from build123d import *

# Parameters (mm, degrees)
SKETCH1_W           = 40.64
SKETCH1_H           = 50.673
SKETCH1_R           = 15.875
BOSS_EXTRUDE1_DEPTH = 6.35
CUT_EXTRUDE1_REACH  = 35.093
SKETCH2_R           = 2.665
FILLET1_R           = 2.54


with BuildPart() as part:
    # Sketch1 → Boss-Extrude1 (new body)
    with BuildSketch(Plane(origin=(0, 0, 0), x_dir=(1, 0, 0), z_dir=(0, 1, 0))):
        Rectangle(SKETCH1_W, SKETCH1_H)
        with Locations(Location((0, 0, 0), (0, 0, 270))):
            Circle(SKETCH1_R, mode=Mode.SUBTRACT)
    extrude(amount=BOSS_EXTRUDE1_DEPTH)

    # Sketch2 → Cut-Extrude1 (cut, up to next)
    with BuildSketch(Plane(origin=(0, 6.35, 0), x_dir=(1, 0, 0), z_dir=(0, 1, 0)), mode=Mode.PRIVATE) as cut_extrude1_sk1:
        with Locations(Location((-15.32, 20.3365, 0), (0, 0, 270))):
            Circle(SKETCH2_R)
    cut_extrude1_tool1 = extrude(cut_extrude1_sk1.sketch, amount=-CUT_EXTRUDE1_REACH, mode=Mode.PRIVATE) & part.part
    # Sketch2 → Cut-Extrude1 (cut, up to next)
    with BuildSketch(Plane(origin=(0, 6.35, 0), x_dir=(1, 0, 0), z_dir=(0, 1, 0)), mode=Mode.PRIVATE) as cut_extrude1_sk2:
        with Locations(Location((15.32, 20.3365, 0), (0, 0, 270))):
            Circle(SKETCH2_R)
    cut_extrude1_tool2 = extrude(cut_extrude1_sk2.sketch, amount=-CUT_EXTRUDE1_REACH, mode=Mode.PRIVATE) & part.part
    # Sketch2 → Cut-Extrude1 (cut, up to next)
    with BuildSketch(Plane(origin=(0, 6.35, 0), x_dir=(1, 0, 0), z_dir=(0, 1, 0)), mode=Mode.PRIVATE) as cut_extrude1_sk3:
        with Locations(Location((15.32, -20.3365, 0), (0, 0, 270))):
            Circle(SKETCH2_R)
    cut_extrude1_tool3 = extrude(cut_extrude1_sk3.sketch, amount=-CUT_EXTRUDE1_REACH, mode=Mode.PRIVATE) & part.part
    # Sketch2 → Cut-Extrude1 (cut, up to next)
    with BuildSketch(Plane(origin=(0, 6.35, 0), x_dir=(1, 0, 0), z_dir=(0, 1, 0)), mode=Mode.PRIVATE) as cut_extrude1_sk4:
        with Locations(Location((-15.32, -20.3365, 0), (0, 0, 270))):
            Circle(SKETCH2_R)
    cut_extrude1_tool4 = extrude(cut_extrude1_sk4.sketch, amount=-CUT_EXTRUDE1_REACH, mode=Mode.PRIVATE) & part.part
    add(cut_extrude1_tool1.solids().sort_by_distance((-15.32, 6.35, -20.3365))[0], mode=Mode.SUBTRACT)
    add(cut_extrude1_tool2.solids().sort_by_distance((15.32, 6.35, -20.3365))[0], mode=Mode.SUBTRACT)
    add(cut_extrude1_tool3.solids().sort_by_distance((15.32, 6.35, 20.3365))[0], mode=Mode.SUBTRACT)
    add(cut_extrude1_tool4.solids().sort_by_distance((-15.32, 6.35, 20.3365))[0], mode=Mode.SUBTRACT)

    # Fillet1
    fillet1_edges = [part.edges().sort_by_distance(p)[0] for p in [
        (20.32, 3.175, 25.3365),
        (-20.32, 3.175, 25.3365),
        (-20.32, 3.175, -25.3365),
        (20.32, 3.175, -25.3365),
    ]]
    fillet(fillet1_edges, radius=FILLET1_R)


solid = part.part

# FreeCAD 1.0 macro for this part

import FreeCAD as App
import Part
import Sketcher
from FreeCAD import Vector
Q = App.Units.Quantity


def edges_at(feature, points):
    """Names of the edges that pass closest to the given points."""
    edges = feature.Shape.Edges
    near = lambda p: min(range(len(edges)), key=lambda i: edges[i].distToShape(Part.Vertex(*p))[0])
    return sorted({f"Edge{near(p) + 1}" for p in points})

doc = App.newDocument("Part")
body = doc.addObject("PartDesign::Body", "Body")

# Sketch on XZ plane
sketch1 = body.newObject("Sketcher::SketchObject", "Sketch")
sketch1.AttachmentSupport = (doc.getObject("XZ_Plane"), [""])
sketch1.MapMode = "FlatFace"
sketch1.addGeometry(Part.LineSegment(Vector(-20, -25, 0), Vector(-20, 25, 0)), False)
sketch1.addGeometry(Part.LineSegment(Vector(-20, 25, 0), Vector(20, 25, 0)), False)
sketch1.addGeometry(Part.LineSegment(Vector(20, 25, 0), Vector(20, -25, 0)), False)
sketch1.addGeometry(Part.LineSegment(Vector(20, -25, 0), Vector(-20, -25, 0)), False)
sketch1.addGeometry(Part.Circle(Vector(0, 0, 0), Vector(0, 0, 1), 16), False)
sketch1.addConstraint(Sketcher.Constraint("Coincident", 0, 2, 1, 1))
sketch1.addConstraint(Sketcher.Constraint("Coincident", 1, 2, 2, 1))
sketch1.addConstraint(Sketcher.Constraint("Coincident", 2, 2, 3, 1))
sketch1.addConstraint(Sketcher.Constraint("Coincident", 3, 2, 0, 1))
sketch1.addConstraint(Sketcher.Constraint("Vertical", 0))
sketch1.addConstraint(Sketcher.Constraint("Horizontal", 1))
sketch1.addConstraint(Sketcher.Constraint("Vertical", 2))
sketch1.addConstraint(Sketcher.Constraint("Horizontal", 3))
sketch1.addConstraint(Sketcher.Constraint("Coincident", 4, 3, -1, 1))
sketch1.addConstraint(Sketcher.Constraint("Symmetric", 0, 2, 2, 2, -1, 1))
sketch1.addConstraint(Sketcher.Constraint("Diameter", 4, Q("1.25 in")))
sketch1.addConstraint(Sketcher.Constraint("DistanceX", 1, 1, 1, 2, Q("1.6 in")))
sketch1.addConstraint(Sketcher.Constraint("DistanceY", 0, 1, 0, 2, Q("1.995 in")))
pad1 = body.newObject("PartDesign::Pad", "Pad")
pad1.Profile = sketch1
pad1.Length = Q("0.25 in")
pad1.Reversed = True

# Sketch on XZ plane
sketch2 = body.newObject("Sketcher::SketchObject", "Sketch001")
sketch2.AttachmentSupport = (doc.getObject("XZ_Plane"), [""])
sketch2.MapMode = "FlatFace"
sketch2.AttachmentOffset = App.Placement(Vector(0, 0, -0.25 * 25.4), App.Rotation())
sketch2.addGeometry(Part.Circle(Vector(-15.3, -20.3, 0), Vector(0, 0, 1), 2.7), False)
sketch2.addConstraint(Sketcher.Constraint("Diameter", 0, 5.33))
sketch2.addConstraint(Sketcher.Constraint("DistanceX", 0, 3, -1, 1, 15.32))
sketch2.addConstraint(Sketcher.Constraint("DistanceY", 0, 3, -1, 1, 20.3365))
pocket1 = body.newObject("PartDesign::Pocket", "Pocket")
pocket1.Profile = sketch2
pocket1.Type = "UpToFirst"
pocket1.Reversed = True

# Sketch on XZ plane
sketch3 = body.newObject("Sketcher::SketchObject", "Sketch002")
sketch3.AttachmentSupport = (doc.getObject("XZ_Plane"), [""])
sketch3.MapMode = "FlatFace"
sketch3.AttachmentOffset = App.Placement(Vector(0, 0, -0.25 * 25.4), App.Rotation())
sketch3.addGeometry(Part.Circle(Vector(15.3, -20.3, 0), Vector(0, 0, 1), 2.7), False)
sketch3.addConstraint(Sketcher.Constraint("Diameter", 0, 5.33))
sketch3.addConstraint(Sketcher.Constraint("DistanceX", -1, 1, 0, 3, 15.32))
sketch3.addConstraint(Sketcher.Constraint("DistanceY", 0, 3, -1, 1, 20.3365))
pocket2 = body.newObject("PartDesign::Pocket", "Pocket001")
pocket2.Profile = sketch3
pocket2.Type = "UpToFirst"
pocket2.Reversed = True

# Sketch on XZ plane
sketch4 = body.newObject("Sketcher::SketchObject", "Sketch003")
sketch4.AttachmentSupport = (doc.getObject("XZ_Plane"), [""])
sketch4.MapMode = "FlatFace"
sketch4.AttachmentOffset = App.Placement(Vector(0, 0, -0.25 * 25.4), App.Rotation())
sketch4.addGeometry(Part.Circle(Vector(15.3, 20.3, 0), Vector(0, 0, 1), 2.7), False)
sketch4.addConstraint(Sketcher.Constraint("Diameter", 0, 5.33))
sketch4.addConstraint(Sketcher.Constraint("DistanceX", -1, 1, 0, 3, 15.32))
sketch4.addConstraint(Sketcher.Constraint("DistanceY", -1, 1, 0, 3, 20.3365))
pocket3 = body.newObject("PartDesign::Pocket", "Pocket002")
pocket3.Profile = sketch4
pocket3.Type = "UpToFirst"
pocket3.Reversed = True

# Sketch on XZ plane
sketch5 = body.newObject("Sketcher::SketchObject", "Sketch004")
sketch5.AttachmentSupport = (doc.getObject("XZ_Plane"), [""])
sketch5.MapMode = "FlatFace"
sketch5.AttachmentOffset = App.Placement(Vector(0, 0, -0.25 * 25.4), App.Rotation())
sketch5.addGeometry(Part.Circle(Vector(-15.3, 20.3, 0), Vector(0, 0, 1), 2.7), False)
sketch5.addConstraint(Sketcher.Constraint("Diameter", 0, 5.33))
sketch5.addConstraint(Sketcher.Constraint("DistanceX", 0, 3, -1, 1, 15.32))
sketch5.addConstraint(Sketcher.Constraint("DistanceY", -1, 1, 0, 3, 20.3365))
pocket4 = body.newObject("PartDesign::Pocket", "Pocket003")
pocket4.Profile = sketch5
pocket4.Type = "UpToFirst"
pocket4.Reversed = True
doc.recompute()

fillet = body.newObject("PartDesign::Fillet", "Fillet")
fillet.Base = (pocket4, edges_at(pocket4, [
    (20.32, 3.175, 25.337),
    (-20.32, 3.175, 25.337),
    (-20.32, 3.175, -25.337),
    (20.32, 3.175, -25.337),
]))
fillet.Radius = Q("0.1 in")

doc.recompute()
